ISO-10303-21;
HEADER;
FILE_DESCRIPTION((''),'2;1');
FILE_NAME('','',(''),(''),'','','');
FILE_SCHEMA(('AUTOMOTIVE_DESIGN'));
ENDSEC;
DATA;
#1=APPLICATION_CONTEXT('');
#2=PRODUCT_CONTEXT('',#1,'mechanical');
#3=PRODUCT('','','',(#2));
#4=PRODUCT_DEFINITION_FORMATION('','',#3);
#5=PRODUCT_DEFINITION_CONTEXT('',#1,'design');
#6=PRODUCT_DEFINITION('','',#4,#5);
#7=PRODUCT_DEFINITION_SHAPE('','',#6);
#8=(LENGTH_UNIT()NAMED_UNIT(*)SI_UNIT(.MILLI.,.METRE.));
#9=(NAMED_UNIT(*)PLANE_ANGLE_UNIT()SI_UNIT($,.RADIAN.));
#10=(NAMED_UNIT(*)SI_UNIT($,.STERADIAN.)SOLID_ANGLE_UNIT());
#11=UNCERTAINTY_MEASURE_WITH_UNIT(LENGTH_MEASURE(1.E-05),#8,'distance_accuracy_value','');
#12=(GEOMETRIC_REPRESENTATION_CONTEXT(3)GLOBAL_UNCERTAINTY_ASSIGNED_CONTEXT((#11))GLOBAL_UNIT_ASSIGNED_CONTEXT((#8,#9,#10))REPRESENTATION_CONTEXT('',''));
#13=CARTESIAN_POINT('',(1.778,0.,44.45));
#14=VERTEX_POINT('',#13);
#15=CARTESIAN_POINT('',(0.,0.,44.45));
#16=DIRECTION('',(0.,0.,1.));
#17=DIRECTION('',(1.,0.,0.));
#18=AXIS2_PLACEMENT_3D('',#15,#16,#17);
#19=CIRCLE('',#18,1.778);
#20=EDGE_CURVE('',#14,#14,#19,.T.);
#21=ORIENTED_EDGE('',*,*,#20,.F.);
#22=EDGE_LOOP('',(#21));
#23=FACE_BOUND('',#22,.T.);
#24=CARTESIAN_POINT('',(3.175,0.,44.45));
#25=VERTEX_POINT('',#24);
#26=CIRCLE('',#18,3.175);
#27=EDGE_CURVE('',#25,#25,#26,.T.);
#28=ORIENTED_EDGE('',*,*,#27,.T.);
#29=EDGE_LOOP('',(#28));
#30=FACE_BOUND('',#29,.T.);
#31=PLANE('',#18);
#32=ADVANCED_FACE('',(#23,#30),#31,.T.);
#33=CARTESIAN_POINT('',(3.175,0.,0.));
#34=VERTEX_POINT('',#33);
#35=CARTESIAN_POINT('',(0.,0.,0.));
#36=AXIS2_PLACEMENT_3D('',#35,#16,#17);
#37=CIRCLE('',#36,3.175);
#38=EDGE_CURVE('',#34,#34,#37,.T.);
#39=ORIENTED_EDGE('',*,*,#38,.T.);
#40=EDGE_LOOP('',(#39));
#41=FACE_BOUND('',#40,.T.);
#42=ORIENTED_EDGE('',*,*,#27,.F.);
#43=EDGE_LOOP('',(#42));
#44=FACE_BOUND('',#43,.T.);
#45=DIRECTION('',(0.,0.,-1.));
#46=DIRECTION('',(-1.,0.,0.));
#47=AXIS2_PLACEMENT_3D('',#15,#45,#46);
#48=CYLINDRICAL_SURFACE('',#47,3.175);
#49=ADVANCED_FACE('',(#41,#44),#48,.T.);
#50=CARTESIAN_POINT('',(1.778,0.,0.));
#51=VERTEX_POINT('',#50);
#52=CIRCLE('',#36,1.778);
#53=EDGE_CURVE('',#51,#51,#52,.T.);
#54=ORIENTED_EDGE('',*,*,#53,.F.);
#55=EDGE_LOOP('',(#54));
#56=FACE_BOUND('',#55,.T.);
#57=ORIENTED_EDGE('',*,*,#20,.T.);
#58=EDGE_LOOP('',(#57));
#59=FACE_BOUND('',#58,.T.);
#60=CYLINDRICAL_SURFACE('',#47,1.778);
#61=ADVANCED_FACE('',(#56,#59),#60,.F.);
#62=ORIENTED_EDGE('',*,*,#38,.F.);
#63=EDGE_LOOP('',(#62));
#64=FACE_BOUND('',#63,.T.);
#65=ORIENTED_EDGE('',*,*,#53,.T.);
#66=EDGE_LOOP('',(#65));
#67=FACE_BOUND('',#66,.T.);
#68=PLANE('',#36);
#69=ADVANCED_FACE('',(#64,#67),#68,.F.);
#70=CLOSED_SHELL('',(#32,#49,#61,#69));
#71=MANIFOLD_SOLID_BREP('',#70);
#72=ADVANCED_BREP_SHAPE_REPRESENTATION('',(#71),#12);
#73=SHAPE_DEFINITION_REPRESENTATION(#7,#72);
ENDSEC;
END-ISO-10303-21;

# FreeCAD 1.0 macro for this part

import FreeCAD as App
import Part
import Sketcher
from FreeCAD import Vector
Q = App.Units.Quantity

doc = App.newDocument("Part")
params = doc.addObject("Spreadsheet::Sheet", "Params")
for row, (alias, value) in enumerate([
    ("sketch1_diameter", "0.25 in"),
    ("sketch1_diameter2", "0.14 in"),
    ("pad1_length", "1.75 in"),
], start=1):
    params.set(f"A{row}", alias)
    params.set(f"B{row}", "=" + value)
    params.setAlias(f"B{row}", alias)

body = doc.addObject("PartDesign::Body", "Body")

sketch1 = doc.addObject("Sketcher::SketchObject", "Sketch")
body.addObject(sketch1)
sketch1.AttachmentSupport = (doc.XY_Plane, [""])
sketch1.MapMode = "FlatFace"
sketch1.addGeometry(Part.Circle(Vector(0, 0, 0), Vector(0, 0, 1), 3.2), False)
sketch1.addGeometry(Part.Circle(Vector(0, 0, 0), Vector(0, 0, 1), 1.8), False)
sketch1.addConstraint(Sketcher.Constraint("Coincident", 0, 3, -1, 1))
sketch1.addConstraint(Sketcher.Constraint("Coincident", 1, 3, -1, 1))
sketch1.addConstraint(Sketcher.Constraint("Diameter", 0, Q("0.25 in")))
sketch1.addConstraint(Sketcher.Constraint("Diameter", 1, Q("0.14 in")))
sketch1.setExpression("Constraints[2]", "Params.sketch1_diameter")
sketch1.setExpression("Constraints[3]", "Params.sketch1_diameter2")
pad1 = doc.addObject("PartDesign::Pad", "Pad")
body.addObject(pad1)
pad1.Profile = sketch1
pad1.setExpression("Length", "Params.pad1_length")

doc.recompute()
